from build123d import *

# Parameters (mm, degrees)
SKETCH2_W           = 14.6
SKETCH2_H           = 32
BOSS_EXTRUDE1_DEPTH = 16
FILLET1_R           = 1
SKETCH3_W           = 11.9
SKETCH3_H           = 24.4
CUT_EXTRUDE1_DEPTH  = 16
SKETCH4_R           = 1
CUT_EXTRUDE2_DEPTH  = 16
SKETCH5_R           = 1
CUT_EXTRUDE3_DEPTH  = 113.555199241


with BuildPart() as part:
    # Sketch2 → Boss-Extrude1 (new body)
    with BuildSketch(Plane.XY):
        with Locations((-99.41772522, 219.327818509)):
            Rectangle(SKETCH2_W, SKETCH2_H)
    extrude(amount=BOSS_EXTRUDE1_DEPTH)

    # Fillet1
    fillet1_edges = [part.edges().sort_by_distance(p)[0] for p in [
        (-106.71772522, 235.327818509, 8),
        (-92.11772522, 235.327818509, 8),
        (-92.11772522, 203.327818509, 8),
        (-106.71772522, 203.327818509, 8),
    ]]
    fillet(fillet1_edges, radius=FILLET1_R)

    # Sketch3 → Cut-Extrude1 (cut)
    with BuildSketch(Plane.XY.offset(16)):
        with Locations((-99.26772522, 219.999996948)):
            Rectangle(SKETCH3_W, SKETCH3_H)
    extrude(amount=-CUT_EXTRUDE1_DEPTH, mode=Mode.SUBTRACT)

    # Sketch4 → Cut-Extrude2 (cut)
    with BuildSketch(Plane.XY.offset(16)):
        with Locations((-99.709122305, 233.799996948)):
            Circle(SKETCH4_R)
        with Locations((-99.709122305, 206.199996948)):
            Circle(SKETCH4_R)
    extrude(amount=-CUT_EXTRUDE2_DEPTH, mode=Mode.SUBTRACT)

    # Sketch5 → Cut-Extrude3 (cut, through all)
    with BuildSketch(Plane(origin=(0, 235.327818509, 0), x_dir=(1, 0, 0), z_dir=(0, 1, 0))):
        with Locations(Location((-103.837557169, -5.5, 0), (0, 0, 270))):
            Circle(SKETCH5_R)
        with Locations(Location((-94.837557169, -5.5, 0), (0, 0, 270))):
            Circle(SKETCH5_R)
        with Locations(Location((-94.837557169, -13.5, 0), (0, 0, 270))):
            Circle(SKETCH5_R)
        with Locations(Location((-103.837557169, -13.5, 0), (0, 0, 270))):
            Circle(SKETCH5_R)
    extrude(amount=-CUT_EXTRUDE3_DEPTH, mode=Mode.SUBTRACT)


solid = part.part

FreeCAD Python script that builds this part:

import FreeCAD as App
import Part
import Sketcher
from FreeCAD import Vector
Q = App.Units.Quantity


def edges_at(feature, points):
    """Names of the edges that pass closest to the given points."""
    edges = feature.Shape.Edges
    near = lambda p: min(range(len(edges)), key=lambda i: edges[i].distToShape(Part.Vertex(*p))[0])
    return sorted({f"Edge{near(p) + 1}" for p in points})

doc = App.newDocument("Part")
body = doc.addObject("PartDesign::Body", "Body")

sketch1 = body.newObject("Sketcher::SketchObject", "Sketch")
sketch1.AttachmentSupport = (doc.getObject("XY_Plane"), [""])
sketch1.MapMode = "FlatFace"
sketch1.addGeometry(Part.LineSegment(Vector(-106.717725, 235.327819, 0), Vector(-106.717725, 203.327819, 0)), False)
sketch1.addGeometry(Part.LineSegment(Vector(-106.717725, 203.327819, 0), Vector(-92.117725, 203.327819, 0)), False)
sketch1.addGeometry(Part.LineSegment(Vector(-92.117725, 203.327819, 0), Vector(-92.117725, 235.327819, 0)), False)
sketch1.addGeometry(Part.LineSegment(Vector(-92.117725, 235.327819, 0), Vector(-106.717725, 235.327819, 0)), False)
sketch1.addConstraint(Sketcher.Constraint("Coincident", 0, 2, 1, 1))
sketch1.addConstraint(Sketcher.Constraint("Coincident", 1, 2, 2, 1))
sketch1.addConstraint(Sketcher.Constraint("Coincident", 2, 2, 3, 1))
sketch1.addConstraint(Sketcher.Constraint("Coincident", 3, 2, 0, 1))
sketch1.addConstraint(Sketcher.Constraint("Vertical", 0))
sketch1.addConstraint(Sketcher.Constraint("Horizontal", 1))
sketch1.addConstraint(Sketcher.Constraint("Vertical", 2))
sketch1.addConstraint(Sketcher.Constraint("Horizontal", 3))
sketch1.addConstraint(Sketcher.Constraint("DistanceY", 0, 2, 0, 1, Q("32 mm")))
sketch1.addConstraint(Sketcher.Constraint("DistanceX", 1, 1, 1, 2, Q("14.6 mm")))
sketch1.addConstraint(Sketcher.Constraint("DistanceY", -1, 1, 0, 2, Q("203.327819 mm")))
sketch1.addConstraint(Sketcher.Constraint("DistanceX", 0, 2, -1, 1, Q("106.717725 mm")))
pad1 = body.newObject("PartDesign::Pad", "Pad")
pad1.Profile = sketch1
pad1.Length = 16
doc.recompute()

fillet = body.newObject("PartDesign::Fillet", "Fillet")
fillet.Base = (pad1, edges_at(pad1, [
    (-106.718, 235.328, 8),
    (-92.118, 235.328, 8),
    (-92.118, 203.328, 8),
    (-106.718, 203.328, 8),
]))
fillet.Radius = 1

sketch2 = body.newObject("Sketcher::SketchObject", "Sketch001")
sketch2.AttachmentSupport = (doc.getObject("XY_Plane"), [""])
sketch2.MapMode = "FlatFace"
sketch2.AttachmentOffset = App.Placement(Vector(0, 0, 16), App.Rotation())
sketch2.addGeometry(Part.LineSegment(Vector(-105.217725, 232.199997, 0), Vector(-105.217725, 207.799997, 0)), False)
sketch2.addGeometry(Part.LineSegment(Vector(-105.217725, 207.799997, 0), Vector(-93.317725, 207.799997, 0)), False)
sketch2.addGeometry(Part.LineSegment(Vector(-93.317725, 207.799997, 0), Vector(-93.317725, 232.199997, 0)), False)
sketch2.addGeometry(Part.LineSegment(Vector(-93.317725, 232.199997, 0), Vector(-105.217725, 232.199997, 0)), False)
sketch2.addConstraint(Sketcher.Constraint("Coincident", 0, 2, 1, 1))
sketch2.addConstraint(Sketcher.Constraint("Coincident", 1, 2, 2, 1))
sketch2.addConstraint(Sketcher.Constraint("Coincident", 2, 2, 3, 1))
sketch2.addConstraint(Sketcher.Constraint("Coincident", 3, 2, 0, 1))
sketch2.addConstraint(Sketcher.Constraint("Vertical", 0))
sketch2.addConstraint(Sketcher.Constraint("Horizontal", 1))
sketch2.addConstraint(Sketcher.Constraint("Vertical", 2))
sketch2.addConstraint(Sketcher.Constraint("Horizontal", 3))
sketch2.addConstraint(Sketcher.Constraint("DistanceX", 1, 1, 1, 2, Q("11.9 mm")))
sketch2.addConstraint(Sketcher.Constraint("DistanceY", 0, 2, 0, 1, Q("24.4 mm")))
sketch2.addConstraint(Sketcher.Constraint("DistanceX", 0, 2, -1, 1, Q("105.217725 mm")))
sketch2.addConstraint(Sketcher.Constraint("DistanceY", -1, 1, 0, 2, Q("207.799997 mm")))
pocket1 = body.newObject("PartDesign::Pocket", "Pocket")
pocket1.Profile = sketch2
pocket1.Length = 16

sketch3 = body.newObject("Sketcher::SketchObject", "Sketch002")
sketch3.AttachmentSupport = (doc.getObject("XY_Plane"), [""])
sketch3.MapMode = "FlatFace"
sketch3.AttachmentOffset = App.Placement(Vector(0, 0, 16), App.Rotation())
sketch3.addGeometry(Part.Circle(Vector(-99.709122, 233.799997, 0), Vector(0, 0, 1), 1), False)
sketch3.addGeometry(Part.Circle(Vector(-99.709122, 206.199997, 0), Vector(0, 0, 1), 1), False)
sketch3.addConstraint(Sketcher.Constraint("Equal", 0, 1))
sketch3.addConstraint(Sketcher.Constraint("Vertical", 0, 3, 1, 3))
sketch3.addConstraint(Sketcher.Constraint("Diameter", 0, Q("2 mm")))
sketch3.addConstraint(Sketcher.Constraint("DistanceY", 1, 3, 0, 3, Q("27.6 mm")))
sketch3.addConstraint(Sketcher.Constraint("DistanceX", 0, 3, -1, 1, Q("99.709122 mm")))
sketch3.addConstraint(Sketcher.Constraint("DistanceY", -1, 1, 0, 3, Q("233.799997 mm")))
pocket2 = body.newObject("PartDesign::Pocket", "Pocket001")
pocket2.Profile = sketch3
pocket2.Length = 16

sketch4 = body.newObject("Sketcher::SketchObject", "Sketch003")
sketch4.AttachmentSupport = (doc.getObject("XZ_Plane"), [""])
sketch4.MapMode = "FlatFace"
sketch4.AttachmentOffset = App.Placement(Vector(0, 0, -235.327819), App.Rotation())
sketch4.addGeometry(Part.Circle(Vector(-103.837557, 5.5, 0), Vector(0, 0, 1), 1), False)
sketch4.addGeometry(Part.Circle(Vector(-94.837557, 5.5, 0), Vector(0, 0, 1), 1), False)
sketch4.addGeometry(Part.Circle(Vector(-94.837557, 13.5, 0), Vector(0, 0, 1), 1), False)
sketch4.addGeometry(Part.Circle(Vector(-103.837557, 13.5, 0), Vector(0, 0, 1), 1), False)
sketch4.addConstraint(Sketcher.Constraint("Equal", 0, 1))
sketch4.addConstraint(Sketcher.Constraint("Equal", 1, 2))
sketch4.addConstraint(Sketcher.Constraint("Equal", 2, 3))
sketch4.addConstraint(Sketcher.Constraint("Horizontal", 0, 3, 1, 3))
sketch4.addConstraint(Sketcher.Constraint("Horizontal", 2, 3, 3, 3))
sketch4.addConstraint(Sketcher.Constraint("Vertical", 1, 3, 2, 3))
sketch4.addConstraint(Sketcher.Constraint("Vertical", 0, 3, 3, 3))
sketch4.addConstraint(Sketcher.Constraint("Diameter", 0, Q("2 mm")))
sketch4.addConstraint(Sketcher.Constraint("DistanceX", 0, 3, 1, 3, Q("9 mm")))
sketch4.addConstraint(Sketcher.Constraint("DistanceY", 1, 3, 2, 3, Q("8 mm")))
sketch4.addConstraint(Sketcher.Constraint("DistanceY", -1, 1, 0, 3, Q("5.5 mm")))
sketch4.addConstraint(Sketcher.Constraint("DistanceX", 0, 3, -1, 1, Q("103.837557 mm")))
pocket3 = body.newObject("PartDesign::Pocket", "Pocket002")
pocket3.Profile = sketch4
pocket3.Type = "ThroughAll"
pocket3.Reversed = True

doc.recompute()
